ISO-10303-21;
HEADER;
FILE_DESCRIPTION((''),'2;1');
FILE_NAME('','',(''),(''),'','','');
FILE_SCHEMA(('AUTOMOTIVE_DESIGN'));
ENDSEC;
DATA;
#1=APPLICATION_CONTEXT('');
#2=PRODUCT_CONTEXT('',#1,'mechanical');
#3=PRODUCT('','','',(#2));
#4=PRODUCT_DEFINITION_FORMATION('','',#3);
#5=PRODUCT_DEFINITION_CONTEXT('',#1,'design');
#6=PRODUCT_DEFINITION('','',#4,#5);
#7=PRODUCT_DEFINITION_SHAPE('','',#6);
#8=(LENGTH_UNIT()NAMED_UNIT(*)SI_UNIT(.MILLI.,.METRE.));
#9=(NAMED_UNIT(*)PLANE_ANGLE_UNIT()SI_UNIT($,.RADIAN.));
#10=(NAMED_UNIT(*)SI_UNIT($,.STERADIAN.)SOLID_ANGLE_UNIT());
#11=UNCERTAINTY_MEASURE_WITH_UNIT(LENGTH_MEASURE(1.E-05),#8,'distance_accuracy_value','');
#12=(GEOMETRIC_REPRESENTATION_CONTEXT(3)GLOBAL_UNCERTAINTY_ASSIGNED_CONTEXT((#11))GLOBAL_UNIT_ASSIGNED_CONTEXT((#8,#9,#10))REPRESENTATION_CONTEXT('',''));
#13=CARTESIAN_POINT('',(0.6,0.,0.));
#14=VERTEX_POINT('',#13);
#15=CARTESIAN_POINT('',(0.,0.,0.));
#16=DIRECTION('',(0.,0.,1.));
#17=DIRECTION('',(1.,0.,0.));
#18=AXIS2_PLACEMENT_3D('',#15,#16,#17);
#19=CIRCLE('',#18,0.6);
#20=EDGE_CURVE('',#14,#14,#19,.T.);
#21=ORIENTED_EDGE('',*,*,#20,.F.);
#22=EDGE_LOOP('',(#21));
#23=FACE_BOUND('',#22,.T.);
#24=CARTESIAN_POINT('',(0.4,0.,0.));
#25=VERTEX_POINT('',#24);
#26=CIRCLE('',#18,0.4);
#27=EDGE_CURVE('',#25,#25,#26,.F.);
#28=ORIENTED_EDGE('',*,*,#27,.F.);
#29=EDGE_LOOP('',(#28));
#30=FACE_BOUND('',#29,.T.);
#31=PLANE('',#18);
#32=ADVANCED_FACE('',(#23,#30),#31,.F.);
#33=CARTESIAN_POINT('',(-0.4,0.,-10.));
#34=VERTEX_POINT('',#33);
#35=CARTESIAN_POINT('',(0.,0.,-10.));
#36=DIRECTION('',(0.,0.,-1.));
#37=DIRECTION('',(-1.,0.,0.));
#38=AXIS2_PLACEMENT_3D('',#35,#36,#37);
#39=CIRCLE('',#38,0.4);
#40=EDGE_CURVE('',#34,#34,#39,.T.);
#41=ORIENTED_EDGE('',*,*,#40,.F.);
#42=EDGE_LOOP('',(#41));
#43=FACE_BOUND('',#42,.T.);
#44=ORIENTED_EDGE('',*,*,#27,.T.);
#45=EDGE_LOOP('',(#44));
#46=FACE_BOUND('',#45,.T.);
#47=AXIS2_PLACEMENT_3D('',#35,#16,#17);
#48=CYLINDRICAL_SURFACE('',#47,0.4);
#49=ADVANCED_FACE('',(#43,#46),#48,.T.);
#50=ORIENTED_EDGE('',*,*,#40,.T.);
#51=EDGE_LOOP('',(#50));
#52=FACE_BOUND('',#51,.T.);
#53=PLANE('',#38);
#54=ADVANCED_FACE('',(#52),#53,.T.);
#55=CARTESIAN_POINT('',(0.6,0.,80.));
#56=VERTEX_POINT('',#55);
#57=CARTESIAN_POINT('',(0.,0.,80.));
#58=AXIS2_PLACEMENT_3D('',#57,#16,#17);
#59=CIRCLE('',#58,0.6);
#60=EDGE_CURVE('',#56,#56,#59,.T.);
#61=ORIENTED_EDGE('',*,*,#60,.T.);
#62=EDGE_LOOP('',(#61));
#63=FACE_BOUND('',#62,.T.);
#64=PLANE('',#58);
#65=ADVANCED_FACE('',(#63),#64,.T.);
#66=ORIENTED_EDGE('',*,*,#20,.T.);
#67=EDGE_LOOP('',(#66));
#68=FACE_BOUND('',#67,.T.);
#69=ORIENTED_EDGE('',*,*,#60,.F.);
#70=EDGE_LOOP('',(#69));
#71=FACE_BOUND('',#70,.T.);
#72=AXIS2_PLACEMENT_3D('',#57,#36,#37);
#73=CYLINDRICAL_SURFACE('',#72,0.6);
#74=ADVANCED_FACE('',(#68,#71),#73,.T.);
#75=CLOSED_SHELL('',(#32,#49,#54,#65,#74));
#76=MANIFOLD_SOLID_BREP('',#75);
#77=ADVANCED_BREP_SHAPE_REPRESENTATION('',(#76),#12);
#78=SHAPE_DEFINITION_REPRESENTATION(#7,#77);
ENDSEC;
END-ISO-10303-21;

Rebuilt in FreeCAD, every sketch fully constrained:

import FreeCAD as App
import Part
import Sketcher
Q = App.Units.Quantity

doc = App.newDocument("Part")
body = doc.addObject("PartDesign::Body", "Body")

# Sketch on XY plane
sketch1 = body.newObject("Sketcher::SketchObject", "Sketch")
sketch1.AttachmentSupport = (doc.getObject("XY_Plane"), [""])
sketch1.MapMode = "FlatFace"
sketch1.addGeometry(Part.Circle(App.Vector(0, 0, 0), App.Vector(0, 0, 1), 0.6), False)
sketch1.addConstraint([
    Sketcher.Constraint("Coincident", 0, 3, -1, 1),
    Sketcher.Constraint("Diameter", 0, Q("1.2 mm")),
])
pad1 = body.newObject("PartDesign::Pad", "Pad")
pad1.Profile = sketch1
pad1.Length = 80

# Sketch on XY plane
sketch2 = body.newObject("Sketcher::SketchObject", "Sketch001")
sketch2.AttachmentSupport = (doc.getObject("XY_Plane"), [""])
sketch2.MapMode = "FlatFace"
sketch2.addGeometry(Part.Circle(App.Vector(0, 0, 0), App.Vector(0, 0, 1), 0.4), False)
sketch2.addConstraint([
    Sketcher.Constraint("Coincident", 0, 3, -1, 1),
    Sketcher.Constraint("Diameter", 0, Q("0.8 mm")),
])
pad2 = body.newObject("PartDesign::Pad", "Pad001")
pad2.Profile = sketch2
pad2.Length = 10
pad2.Reversed = True

doc.recompute()
